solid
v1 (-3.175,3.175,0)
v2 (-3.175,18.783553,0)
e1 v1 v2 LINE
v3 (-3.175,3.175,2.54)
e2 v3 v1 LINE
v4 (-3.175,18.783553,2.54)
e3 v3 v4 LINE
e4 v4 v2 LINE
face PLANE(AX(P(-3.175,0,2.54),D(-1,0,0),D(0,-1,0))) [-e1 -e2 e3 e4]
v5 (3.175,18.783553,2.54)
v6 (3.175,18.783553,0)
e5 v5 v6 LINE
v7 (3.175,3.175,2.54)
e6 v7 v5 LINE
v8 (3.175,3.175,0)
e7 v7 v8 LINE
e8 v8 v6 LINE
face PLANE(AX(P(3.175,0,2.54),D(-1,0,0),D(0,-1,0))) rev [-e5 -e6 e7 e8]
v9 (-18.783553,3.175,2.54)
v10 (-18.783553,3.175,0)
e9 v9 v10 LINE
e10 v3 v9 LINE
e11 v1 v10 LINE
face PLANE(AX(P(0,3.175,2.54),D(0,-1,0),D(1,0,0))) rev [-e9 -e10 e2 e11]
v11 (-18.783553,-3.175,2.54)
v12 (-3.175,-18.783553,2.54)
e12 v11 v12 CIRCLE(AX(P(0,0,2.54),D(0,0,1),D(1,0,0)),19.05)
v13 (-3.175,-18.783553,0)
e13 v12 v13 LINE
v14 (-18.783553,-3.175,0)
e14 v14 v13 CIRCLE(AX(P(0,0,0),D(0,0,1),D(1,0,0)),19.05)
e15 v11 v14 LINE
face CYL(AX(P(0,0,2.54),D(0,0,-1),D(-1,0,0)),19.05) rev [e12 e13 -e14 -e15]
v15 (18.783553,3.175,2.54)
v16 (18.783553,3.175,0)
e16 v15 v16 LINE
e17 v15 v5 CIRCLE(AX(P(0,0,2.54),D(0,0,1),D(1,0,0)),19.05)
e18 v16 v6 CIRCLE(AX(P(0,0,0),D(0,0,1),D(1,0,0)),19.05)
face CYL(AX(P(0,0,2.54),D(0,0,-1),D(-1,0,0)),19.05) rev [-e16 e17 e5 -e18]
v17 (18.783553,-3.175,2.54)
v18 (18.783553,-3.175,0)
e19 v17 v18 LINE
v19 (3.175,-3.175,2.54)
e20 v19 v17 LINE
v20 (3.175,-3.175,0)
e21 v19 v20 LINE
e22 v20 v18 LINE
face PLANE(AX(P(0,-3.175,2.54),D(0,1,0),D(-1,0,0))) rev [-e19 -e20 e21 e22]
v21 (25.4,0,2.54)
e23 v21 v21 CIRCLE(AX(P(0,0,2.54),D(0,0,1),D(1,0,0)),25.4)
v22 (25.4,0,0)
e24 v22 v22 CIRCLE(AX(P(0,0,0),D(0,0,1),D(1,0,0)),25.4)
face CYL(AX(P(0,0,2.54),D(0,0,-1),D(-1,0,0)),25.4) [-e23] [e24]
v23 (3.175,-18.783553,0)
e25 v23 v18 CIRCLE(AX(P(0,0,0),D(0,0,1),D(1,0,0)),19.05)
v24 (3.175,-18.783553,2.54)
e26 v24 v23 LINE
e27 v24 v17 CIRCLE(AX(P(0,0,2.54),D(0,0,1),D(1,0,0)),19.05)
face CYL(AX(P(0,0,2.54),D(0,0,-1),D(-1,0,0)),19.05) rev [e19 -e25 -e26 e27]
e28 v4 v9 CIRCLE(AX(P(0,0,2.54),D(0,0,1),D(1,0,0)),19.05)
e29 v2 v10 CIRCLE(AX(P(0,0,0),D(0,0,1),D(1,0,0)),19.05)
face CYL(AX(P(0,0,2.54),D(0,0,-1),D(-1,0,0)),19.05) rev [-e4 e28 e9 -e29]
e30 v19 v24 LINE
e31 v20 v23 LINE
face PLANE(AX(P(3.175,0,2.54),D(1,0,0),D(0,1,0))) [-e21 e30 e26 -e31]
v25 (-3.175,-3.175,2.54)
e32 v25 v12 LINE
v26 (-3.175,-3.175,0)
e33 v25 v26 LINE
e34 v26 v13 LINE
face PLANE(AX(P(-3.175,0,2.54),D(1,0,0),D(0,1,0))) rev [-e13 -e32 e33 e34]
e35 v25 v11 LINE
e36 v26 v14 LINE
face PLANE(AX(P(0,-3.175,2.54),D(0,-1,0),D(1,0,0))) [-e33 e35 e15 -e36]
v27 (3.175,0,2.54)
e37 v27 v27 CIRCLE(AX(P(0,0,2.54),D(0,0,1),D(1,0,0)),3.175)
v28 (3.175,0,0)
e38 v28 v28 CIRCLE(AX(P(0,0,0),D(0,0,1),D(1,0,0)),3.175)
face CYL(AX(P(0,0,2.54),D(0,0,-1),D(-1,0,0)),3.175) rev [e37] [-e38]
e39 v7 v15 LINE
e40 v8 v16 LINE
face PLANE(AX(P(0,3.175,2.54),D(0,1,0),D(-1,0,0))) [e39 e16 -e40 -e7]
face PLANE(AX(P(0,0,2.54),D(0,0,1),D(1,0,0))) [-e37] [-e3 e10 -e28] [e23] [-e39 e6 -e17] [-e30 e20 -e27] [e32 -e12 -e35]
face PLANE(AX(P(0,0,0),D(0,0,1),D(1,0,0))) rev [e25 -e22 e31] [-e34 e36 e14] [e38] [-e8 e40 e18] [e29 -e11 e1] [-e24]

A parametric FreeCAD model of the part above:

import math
import FreeCAD as App
import Part
import Sketcher
Q = App.Units.Quantity

doc = App.newDocument("Part")
body = doc.addObject("PartDesign::Body", "Body")

# Sketch on XY plane
sketch1 = body.newObject("Sketcher::SketchObject", "Sketch")
sketch1.AttachmentSupport = (doc.getObject("XY_Plane"), [""])
sketch1.MapMode = "FlatFace"
sketch1.addGeometry(Part.Circle(App.Vector(0, 0, 0), App.Vector(0, 0, 1), 25), False)
sketch1.addConstraint([
    Sketcher.Constraint("Coincident", 0, 3, -1, 1),
    Sketcher.Constraint("Diameter", 0, Q("2 in")),
])
pad1 = body.newObject("PartDesign::Pad", "Pad")
pad1.Profile = sketch1
pad1.Length = Q("0.1 in")

# Sketch on XY plane
sketch2 = body.newObject("Sketcher::SketchObject", "Sketch001")
sketch2.AttachmentSupport = (doc.getObject("XY_Plane"), [""])
sketch2.MapMode = "FlatFace"
sketch2.addGeometry([
    Part.LineSegment(App.Vector(-3.2, -18.8, 0), App.Vector(-3.2, -3.2, 0)),  # 0
    Part.LineSegment(App.Vector(-3.2, -3.2, 0), App.Vector(-18.8, -3.2, 0)),  # 1
    Part.ArcOfCircle(Part.Circle(App.Vector(0, 0, 0), App.Vector(0, 0, 1), 19), math.radians(-170), math.radians(-100)),  # 2
    Part.LineSegment(App.Vector(-18.8, 3.2, 0), App.Vector(-3.2, 3.2, 0)),  # 3
    Part.LineSegment(App.Vector(-3.2, 3.2, 0), App.Vector(-3.2, 18.8, 0)),  # 4
    Part.ArcOfCircle(Part.Circle(App.Vector(0, 0, 0), App.Vector(0, 0, 1), 19), math.radians(100), math.radians(170)),  # 5
    Part.LineSegment(App.Vector(3.2, 18.8, 0), App.Vector(3.2, 3.2, 0)),  # 6
    Part.LineSegment(App.Vector(3.2, 3.2, 0), App.Vector(18.8, 3.2, 0)),  # 7
    Part.ArcOfCircle(Part.Circle(App.Vector(0, 0, 0), App.Vector(0, 0, 1), 19), math.radians(10), math.radians(80)),  # 8
    Part.LineSegment(App.Vector(18.8, -3.2, 0), App.Vector(3.2, -3.2, 0)),  # 9
    Part.LineSegment(App.Vector(3.2, -3.2, 0), App.Vector(3.2, -18.8, 0)),  # 10
    Part.ArcOfCircle(Part.Circle(App.Vector(0, 0, 0), App.Vector(0, 0, 1), 19), math.radians(-80), math.radians(-10)),  # 11
    Part.Circle(App.Vector(0, 0, 0), App.Vector(0, 0, 1), 3.2),  # 12
], False)
sketch2.addConstraint([
    Sketcher.Constraint("Coincident", 0, 2, 1, 1),
    Sketcher.Constraint("Coincident", 1, 2, 2, 1),
    Sketcher.Constraint("Coincident", 2, 2, 0, 1),
    Sketcher.Constraint("Coincident", 3, 2, 4, 1),
    Sketcher.Constraint("Coincident", 4, 2, 5, 1),
    Sketcher.Constraint("Coincident", 5, 2, 3, 1),
    Sketcher.Constraint("Coincident", 6, 2, 7, 1),
    Sketcher.Constraint("Coincident", 7, 2, 8, 1),
    Sketcher.Constraint("Coincident", 8, 2, 6, 1),
    Sketcher.Constraint("Coincident", 9, 2, 10, 1),
    Sketcher.Constraint("Coincident", 10, 2, 11, 1),
    Sketcher.Constraint("Coincident", 11, 2, 9, 1),
    Sketcher.Constraint("Vertical", 0),
    Sketcher.Constraint("Horizontal", 1),
    Sketcher.Constraint("Horizontal", 3),
    Sketcher.Constraint("Vertical", 4),
    Sketcher.Constraint("Vertical", 6),
    Sketcher.Constraint("Horizontal", 7),
    Sketcher.Constraint("Horizontal", 9),
    Sketcher.Constraint("Vertical", 10),
    Sketcher.Constraint("Coincident", 2, 3, -1, 1),
    Sketcher.Constraint("Coincident", 5, 3, -1, 1),
    Sketcher.Constraint("Coincident", 8, 3, -1, 1),
    Sketcher.Constraint("Coincident", 11, 3, -1, 1),
    Sketcher.Constraint("Coincident", 12, 3, -1, 1),
    Sketcher.Constraint("Equal", 2, 5),
    Sketcher.Constraint("Equal", 5, 8),
    Sketcher.Constraint("Equal", 8, 11),
    Sketcher.Constraint("Symmetric", 0, 2, 6, 2, -1, 1),
    Sketcher.Constraint("Symmetric", 3, 2, 9, 2, -1, 1),
    Sketcher.Constraint("Symmetric", 3, 2, 6, 2, -2),
    Sketcher.Constraint("Equal", 9, 0),
    Sketcher.Constraint("Diameter", 12, Q("0.25 in")),
    Sketcher.Constraint("Radius", 2, Q("0.75 in")),
    Sketcher.Constraint("DistanceY", 1, 2, 5, 2, Q("0.25 in")),
])
pocket1 = body.newObject("PartDesign::Pocket", "Pocket")
pocket1.Profile = sketch2
pocket1.Length = Q("0.1 in")
pocket1.Reversed = True

doc.recompute()
